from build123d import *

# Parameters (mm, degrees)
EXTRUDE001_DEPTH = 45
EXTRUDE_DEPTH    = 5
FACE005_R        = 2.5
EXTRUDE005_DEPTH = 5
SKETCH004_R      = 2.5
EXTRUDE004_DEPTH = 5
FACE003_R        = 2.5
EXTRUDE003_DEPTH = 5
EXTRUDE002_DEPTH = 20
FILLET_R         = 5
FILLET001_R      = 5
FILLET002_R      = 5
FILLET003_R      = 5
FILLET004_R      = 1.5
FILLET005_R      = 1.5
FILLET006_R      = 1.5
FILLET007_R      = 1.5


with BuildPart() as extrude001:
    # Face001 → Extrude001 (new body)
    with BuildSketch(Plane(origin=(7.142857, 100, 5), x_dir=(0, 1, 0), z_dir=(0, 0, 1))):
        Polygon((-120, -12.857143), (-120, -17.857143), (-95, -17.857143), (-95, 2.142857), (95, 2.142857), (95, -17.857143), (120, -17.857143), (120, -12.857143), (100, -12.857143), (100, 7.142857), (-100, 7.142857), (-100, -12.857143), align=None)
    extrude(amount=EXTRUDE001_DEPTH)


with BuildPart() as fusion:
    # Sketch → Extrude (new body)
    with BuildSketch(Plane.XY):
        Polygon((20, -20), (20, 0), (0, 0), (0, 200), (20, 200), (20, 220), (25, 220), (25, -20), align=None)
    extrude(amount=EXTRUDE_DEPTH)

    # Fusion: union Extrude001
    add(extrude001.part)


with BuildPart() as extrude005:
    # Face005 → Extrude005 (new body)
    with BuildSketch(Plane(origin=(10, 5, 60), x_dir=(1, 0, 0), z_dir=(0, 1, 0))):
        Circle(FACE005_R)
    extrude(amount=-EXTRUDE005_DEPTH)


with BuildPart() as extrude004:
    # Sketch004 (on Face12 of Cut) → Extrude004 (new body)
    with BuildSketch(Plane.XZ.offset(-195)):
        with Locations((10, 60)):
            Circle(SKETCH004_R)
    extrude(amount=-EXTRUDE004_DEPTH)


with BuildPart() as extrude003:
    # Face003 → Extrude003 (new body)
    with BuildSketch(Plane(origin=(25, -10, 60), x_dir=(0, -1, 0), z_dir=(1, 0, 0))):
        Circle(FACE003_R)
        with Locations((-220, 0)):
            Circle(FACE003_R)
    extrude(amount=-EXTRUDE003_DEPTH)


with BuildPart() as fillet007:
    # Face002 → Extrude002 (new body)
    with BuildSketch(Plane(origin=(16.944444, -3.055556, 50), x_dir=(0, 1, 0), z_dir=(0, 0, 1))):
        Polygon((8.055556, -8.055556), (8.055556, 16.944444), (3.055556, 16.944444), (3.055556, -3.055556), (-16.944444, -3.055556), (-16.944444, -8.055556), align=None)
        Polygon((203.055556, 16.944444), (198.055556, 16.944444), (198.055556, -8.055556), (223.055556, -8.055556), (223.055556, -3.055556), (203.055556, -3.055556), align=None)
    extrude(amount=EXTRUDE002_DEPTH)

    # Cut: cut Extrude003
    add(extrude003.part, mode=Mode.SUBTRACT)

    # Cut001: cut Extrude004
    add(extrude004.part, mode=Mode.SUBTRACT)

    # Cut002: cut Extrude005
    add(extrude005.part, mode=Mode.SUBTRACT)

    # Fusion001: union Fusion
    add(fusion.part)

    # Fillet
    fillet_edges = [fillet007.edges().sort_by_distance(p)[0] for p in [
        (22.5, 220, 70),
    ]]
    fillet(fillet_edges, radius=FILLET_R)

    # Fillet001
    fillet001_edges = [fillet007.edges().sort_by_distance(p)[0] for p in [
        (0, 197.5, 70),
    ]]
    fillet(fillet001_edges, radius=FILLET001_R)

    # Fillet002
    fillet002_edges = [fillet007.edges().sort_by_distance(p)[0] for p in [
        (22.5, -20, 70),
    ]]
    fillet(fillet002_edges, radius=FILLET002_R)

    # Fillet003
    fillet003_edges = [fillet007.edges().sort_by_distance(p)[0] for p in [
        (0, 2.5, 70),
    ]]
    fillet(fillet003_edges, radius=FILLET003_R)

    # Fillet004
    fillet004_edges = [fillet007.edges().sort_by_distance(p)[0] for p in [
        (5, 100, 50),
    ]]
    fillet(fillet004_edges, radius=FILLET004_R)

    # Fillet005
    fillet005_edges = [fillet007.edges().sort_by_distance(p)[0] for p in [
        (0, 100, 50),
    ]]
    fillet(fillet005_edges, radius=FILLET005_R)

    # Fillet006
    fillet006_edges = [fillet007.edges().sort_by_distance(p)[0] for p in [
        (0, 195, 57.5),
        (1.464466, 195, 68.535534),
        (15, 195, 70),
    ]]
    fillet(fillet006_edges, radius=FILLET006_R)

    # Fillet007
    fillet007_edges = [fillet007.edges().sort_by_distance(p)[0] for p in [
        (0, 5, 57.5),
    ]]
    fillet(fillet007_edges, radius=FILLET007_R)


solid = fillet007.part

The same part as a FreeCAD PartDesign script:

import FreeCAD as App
import Part
import Sketcher
from FreeCAD import Vector


def edges_at(feature, points):
    """Names of the edges that pass closest to the given points."""
    edges = feature.Shape.Edges
    near = lambda p: min(range(len(edges)), key=lambda i: edges[i].distToShape(Part.Vertex(*p))[0])
    return sorted({f"Edge{near(p) + 1}" for p in points})

doc = App.newDocument("Part")
params = doc.addObject("Spreadsheet::Sheet", "Params")
for row, (alias, value) in enumerate([
    ("sketch1_width", "5 mm"),
    ("sketch1_width2", "20 mm"),
    ("sketch1_height", "25 mm"),
    ("sketch1_height2", "190 mm"),
    ("pad1_length", "45 mm"),
    ("sketch2_width", "5 mm"),
    ("sketch2_width2", "20 mm"),
    ("sketch2_height", "240 mm"),
    ("pad2_length", "5 mm"),
    ("sketch3_diameter", "5 mm"),
    ("pad3_length", "5 mm"),
    ("sketch4_diameter", "5 mm"),
    ("pad4_length", "5 mm"),
    ("sketch5_diameter", "5 mm"),
    ("pad5_length", "5 mm"),
    ("sketch6_width", "25 mm"),
    ("sketch6_width2", "20 mm"),
    ("pad6_length", "20 mm"),
    ("fillet_radius", "5 mm"),
    ("fillet2_radius", "5 mm"),
    ("fillet3_radius", "5 mm"),
    ("fillet4_radius", "5 mm"),
    ("fillet5_radius", "1.5 mm"),
    ("fillet6_radius", "1.5 mm"),
    ("fillet7_radius", "1.5 mm"),
    ("fillet8_radius", "1.5 mm"),
], start=1):
    params.set(f"A{row}", alias)
    params.set(f"B{row}", "=" + value)
    params.setAlias(f"B{row}", alias)

body = doc.addObject("PartDesign::Body", "Body")

sketch1 = body.newObject("Sketcher::SketchObject", "Sketch")
sketch1.AttachmentSupport = (doc.getObject("XY_Plane"), [""])
sketch1.MapMode = "FlatFace"
sketch1.AttachmentOffset = App.Placement(Vector(0, 0, 5), App.Rotation())
sketch1.addGeometry([
    Part.LineSegment(Vector(20, -20, 0), Vector(25, -20, 0)),
    Part.LineSegment(Vector(25, -20, 0), Vector(25, 5, 0)),
    Part.LineSegment(Vector(25, 5, 0), Vector(5, 5, 0)),
    Part.LineSegment(Vector(5, 5, 0), Vector(5, 195, 0)),
    Part.LineSegment(Vector(5, 195, 0), Vector(25, 195, 0)),
    Part.LineSegment(Vector(25, 195, 0), Vector(25, 220, 0)),
    Part.LineSegment(Vector(25, 220, 0), Vector(20, 220, 0)),
    Part.LineSegment(Vector(20, 220, 0), Vector(20, 200, 0)),
    Part.LineSegment(Vector(20, 200, 0), Vector(0, 200, 0)),
    Part.LineSegment(Vector(0, 200, 0), Vector(0, 0, 0)),
    Part.LineSegment(Vector(0, 0, 0), Vector(20, 0, 0)),
    Part.LineSegment(Vector(20, 0, 0), Vector(20, -20, 0)),
], False)
sketch1.addConstraint([
    Sketcher.Constraint("Coincident", 0, 2, 1, 1),
    Sketcher.Constraint("Coincident", 1, 2, 2, 1),
    Sketcher.Constraint("Coincident", 2, 2, 3, 1),
    Sketcher.Constraint("Coincident", 3, 2, 4, 1),
    Sketcher.Constraint("Coincident", 4, 2, 5, 1),
    Sketcher.Constraint("Coincident", 5, 2, 6, 1),
    Sketcher.Constraint("Coincident", 6, 2, 7, 1),
    Sketcher.Constraint("Coincident", 7, 2, 8, 1),
    Sketcher.Constraint("Coincident", 8, 2, 9, 1),
    Sketcher.Constraint("Coincident", 9, 2, 10, 1),
    Sketcher.Constraint("Coincident", 10, 2, 11, 1),
    Sketcher.Constraint("Coincident", 11, 2, 0, 1),
    Sketcher.Constraint("Horizontal", 0),
    Sketcher.Constraint("Vertical", 1),
    Sketcher.Constraint("Horizontal", 2),
    Sketcher.Constraint("Vertical", 3),
    Sketcher.Constraint("Horizontal", 4),
    Sketcher.Constraint("Vertical", 5),
    Sketcher.Constraint("Horizontal", 6),
    Sketcher.Constraint("Vertical", 7),
    Sketcher.Constraint("Horizontal", 8),
    Sketcher.Constraint("Vertical", 9),
    Sketcher.Constraint("Horizontal", 10),
    Sketcher.Constraint("Vertical", 11),
    Sketcher.Constraint("Coincident", 9, 2, -1, 1),
    Sketcher.Constraint("Vertical", 1, 2, 4, 2),
    Sketcher.Constraint("Vertical", 7, 2, 10, 2),
    Sketcher.Constraint("Equal", 4, 8),
    Sketcher.Constraint("Equal", 1, 5),
    Sketcher.Constraint("Equal", 10, 7),
    Sketcher.Constraint("Equal", 7, 11),
    Sketcher.Constraint("DistanceX", 0, 1, 0, 2, 5.0),
    Sketcher.Constraint("DistanceX", 2, 2, 2, 1, 20.0),
    Sketcher.Constraint("DistanceY", 1, 1, 1, 2, 25.0),
    Sketcher.Constraint("DistanceY", 3, 1, 3, 2, 190.0),
])
sketch1.setExpression("Constraints[31]", "Params.sketch1_width")
sketch1.setExpression("Constraints[32]", "Params.sketch1_width2")
sketch1.setExpression("Constraints[33]", "Params.sketch1_height")
sketch1.setExpression("Constraints[34]", "Params.sketch1_height2")
pad1 = body.newObject("PartDesign::Pad", "Pad")
pad1.Profile = sketch1
pad1.setExpression("Length", "Params.pad1_length")
body2 = doc.addObject("PartDesign::Body", "Body001")

sketch2 = body2.newObject("Sketcher::SketchObject", "Sketch001")
sketch2.AttachmentSupport = (doc.getObject("XY_Plane001"), [""])
sketch2.MapMode = "FlatFace"
sketch2.addGeometry([
    Part.LineSegment(Vector(20, 0, 0), Vector(20, -20, 0)),
    Part.LineSegment(Vector(20, -20, 0), Vector(25, -20, 0)),
    Part.LineSegment(Vector(25, -20, 0), Vector(25, 220, 0)),
    Part.LineSegment(Vector(25, 220, 0), Vector(20, 220, 0)),
    Part.LineSegment(Vector(20, 220, 0), Vector(20, 200, 0)),
    Part.LineSegment(Vector(20, 200, 0), Vector(0, 200, 0)),
    Part.LineSegment(Vector(0, 200, 0), Vector(0, 0, 0)),
    Part.LineSegment(Vector(0, 0, 0), Vector(20, 0, 0)),
], False)
sketch2.addConstraint([
    Sketcher.Constraint("Coincident", 0, 2, 1, 1),
    Sketcher.Constraint("Coincident", 1, 2, 2, 1),
    Sketcher.Constraint("Coincident", 2, 2, 3, 1),
    Sketcher.Constraint("Coincident", 3, 2, 4, 1),
    Sketcher.Constraint("Coincident", 4, 2, 5, 1),
    Sketcher.Constraint("Coincident", 5, 2, 6, 1),
    Sketcher.Constraint("Coincident", 6, 2, 7, 1),
    Sketcher.Constraint("Coincident", 7, 2, 0, 1),
    Sketcher.Constraint("Vertical", 0),
    Sketcher.Constraint("Horizontal", 1),
    Sketcher.Constraint("Vertical", 2),
    Sketcher.Constraint("Horizontal", 3),
    Sketcher.Constraint("Vertical", 4),
    Sketcher.Constraint("Horizontal", 5),
    Sketcher.Constraint("Vertical", 6),
    Sketcher.Constraint("Horizontal", 7),
    Sketcher.Constraint("Coincident", 6, 2, -1, 1),
    Sketcher.Constraint("Vertical", 0, 2, 3, 2),
    Sketcher.Constraint("Equal", 7, 0),
    Sketcher.Constraint("Equal", 0, 4),
    Sketcher.Constraint("DistanceX", 1, 1, 1, 2, 5.0),
    Sketcher.Constraint("DistanceX", 5, 2, 5, 1, 20.0),
    Sketcher.Constraint("DistanceY", 2, 1, 2, 2, 240.0),
])
sketch2.setExpression("Constraints[20]", "Params.sketch2_width")
sketch2.setExpression("Constraints[21]", "Params.sketch2_width2")
sketch2.setExpression("Constraints[22]", "Params.sketch2_height")
pad2 = body2.newObject("PartDesign::Pad", "Pad001")
pad2.Profile = sketch2
pad2.setExpression("Length", "Params.pad2_length")
doc.recompute()

boolean = body2.newObject("PartDesign::Boolean", "Boolean")
boolean.Type = "Fuse"
boolean.addObjects([body])
body3 = doc.addObject("PartDesign::Body", "Body002")

sketch3 = body3.newObject("Sketcher::SketchObject", "Sketch002")
sketch3.AttachmentSupport = (doc.getObject("XZ_Plane002"), [""])
sketch3.MapMode = "FlatFace"
sketch3.AttachmentOffset = App.Placement(Vector(0, 0, -5), App.Rotation())
sketch3.addGeometry(Part.Circle(Vector(10, 60, 0), Vector(0, 0, 1), 2.5), False)
sketch3.addConstraint([
    Sketcher.Constraint("Diameter", 0, 5.0),
    Sketcher.Constraint("DistanceX", -1, 1, 0, 3, 10.0),
    Sketcher.Constraint("DistanceY", -1, 1, 0, 3, 60.0),
])
sketch3.setExpression("Constraints[0]", "Params.sketch3_diameter")
pad3 = body3.newObject("PartDesign::Pad", "Pad002")
pad3.Profile = sketch3
pad3.setExpression("Length", "Params.pad3_length")
body4 = doc.addObject("PartDesign::Body", "Body003")

sketch4 = body4.newObject("Sketcher::SketchObject", "Sketch003")
sketch4.AttachmentSupport = (doc.getObject("XZ_Plane003"), [""])
sketch4.MapMode = "FlatFace"
sketch4.AttachmentOffset = App.Placement(Vector(0, 0, -195), App.Rotation())
sketch4.addGeometry(Part.Circle(Vector(10, 60, 0), Vector(0, 0, 1), 2.5), False)
sketch4.addConstraint([
    Sketcher.Constraint("Diameter", 0, 5.0),
    Sketcher.Constraint("DistanceX", -1, 1, 0, 3, 10.0),
    Sketcher.Constraint("DistanceY", -1, 1, 0, 3, 60.0),
])
sketch4.setExpression("Constraints[0]", "Params.sketch4_diameter")
pad4 = body4.newObject("PartDesign::Pad", "Pad003")
pad4.Profile = sketch4
pad4.setExpression("Length", "Params.pad4_length")
pad4.Reversed = True
body5 = doc.addObject("PartDesign::Body", "Body004")
body5.AllowCompound = True

sketch5 = body5.newObject("Sketcher::SketchObject", "Sketch004")
sketch5.AttachmentSupport = (doc.getObject("YZ_Plane004"), [""])
sketch5.MapMode = "FlatFace"
sketch5.AttachmentOffset = App.Placement(Vector(0, 0, 25), App.Rotation())
sketch5.addGeometry([
    Part.Circle(Vector(-10, 60, 0), Vector(0, 0, 1), 2.5),
    Part.Circle(Vector(210, 60, 0), Vector(0, 0, 1), 2.5),
], False)
sketch5.addConstraint([
    Sketcher.Constraint("Equal", 0, 1),
    Sketcher.Constraint("Horizontal", 0, 3, 1, 3),
    Sketcher.Constraint("Diameter", 0, 5.0),
    Sketcher.Constraint("DistanceX", 0, 3, -1, 1, 10.0),
    Sketcher.Constraint("DistanceY", -1, 1, 0, 3, 60.0),
    Sketcher.Constraint("DistanceX", -1, 1, 1, 3, 210.0),
])
sketch5.setExpression("Constraints[2]", "Params.sketch5_diameter")
pad5 = body5.newObject("PartDesign::Pad", "Pad004")
pad5.Profile = sketch5
pad5.setExpression("Length", "Params.pad5_length")
pad5.Reversed = True
body6 = doc.addObject("PartDesign::Body", "Body005")
body6.AllowCompound = True

sketch6 = body6.newObject("Sketcher::SketchObject", "Sketch005")
sketch6.AttachmentSupport = (doc.getObject("XY_Plane005"), [""])
sketch6.MapMode = "FlatFace"
sketch6.AttachmentOffset = App.Placement(Vector(0, 0, 50), App.Rotation())
sketch6.addGeometry([
    Part.LineSegment(Vector(25, 5, 0), Vector(0, 5, 0)),
    Part.LineSegment(Vector(0, 5, 0), Vector(0, 0, 0)),
    Part.LineSegment(Vector(0, 0, 0), Vector(20, 0, 0)),
    Part.LineSegment(Vector(20, 0, 0), Vector(20, -20, 0)),
    Part.LineSegment(Vector(20, -20, 0), Vector(25, -20, 0)),
    Part.LineSegment(Vector(25, -20, 0), Vector(25, 5, 0)),
    Part.LineSegment(Vector(0, 200, 0), Vector(0, 195, 0)),
    Part.LineSegment(Vector(0, 195, 0), Vector(25, 195, 0)),
    Part.LineSegment(Vector(25, 195, 0), Vector(25, 220, 0)),
    Part.LineSegment(Vector(25, 220, 0), Vector(20, 220, 0)),
    Part.LineSegment(Vector(20, 220, 0), Vector(20, 200, 0)),
    Part.LineSegment(Vector(20, 200, 0), Vector(0, 200, 0)),
], False)
sketch6.addConstraint([
    Sketcher.Constraint("Coincident", 0, 2, 1, 1),
    Sketcher.Constraint("Coincident", 1, 2, 2, 1),
    Sketcher.Constraint("Coincident", 2, 2, 3, 1),
    Sketcher.Constraint("Coincident", 3, 2, 4, 1),
    Sketcher.Constraint("Coincident", 4, 2, 5, 1),
    Sketcher.Constraint("Coincident", 5, 2, 0, 1),
    Sketcher.Constraint("Coincident", 6, 2, 7, 1),
    Sketcher.Constraint("Coincident", 7, 2, 8, 1),
    Sketcher.Constraint("Coincident", 8, 2, 9, 1),
    Sketcher.Constraint("Coincident", 9, 2, 10, 1),
    Sketcher.Constraint("Coincident", 10, 2, 11, 1),
    Sketcher.Constraint("Coincident", 11, 2, 6, 1),
    Sketcher.Constraint("Horizontal", 0),
    Sketcher.Constraint("Vertical", 1),
    Sketcher.Constraint("Horizontal", 2),
    Sketcher.Constraint("Vertical", 3),
    Sketcher.Constraint("Horizontal", 4),
    Sketcher.Constraint("Vertical", 5),
    Sketcher.Constraint("Vertical", 6),
    Sketcher.Constraint("Horizontal", 7),
    Sketcher.Constraint("Vertical", 8),
    Sketcher.Constraint("Horizontal", 9),
    Sketcher.Constraint("Vertical", 10),
    Sketcher.Constraint("Horizontal", 11),
    Sketcher.Constraint("Coincident", 1, 2, -1, 1),
    Sketcher.Constraint("PointOnObject", 6, 2, -2),
    Sketcher.Constraint("Vertical", 5, 2, 7, 2),
    Sketcher.Constraint("Vertical", 3, 2, 9, 2),
    Sketcher.Constraint("Equal", 9, 1),
    Sketcher.Constraint("Equal", 11, 3),
    Sketcher.Constraint("Equal", 1, 6),
    Sketcher.Constraint("Equal", 5, 8),
    Sketcher.Constraint("DistanceX", 0, 2, 0, 1, 25.0),
    Sketcher.Constraint("DistanceX", 2, 1, 2, 2, 20.0),
    Sketcher.Constraint("DistanceY", -1, 1, 6, 2, 195.0),
])
sketch6.setExpression("Constraints[32]", "Params.sketch6_width")
sketch6.setExpression("Constraints[33]", "Params.sketch6_width2")
pad6 = body6.newObject("PartDesign::Pad", "Pad005")
pad6.Profile = sketch6
pad6.setExpression("Length", "Params.pad6_length")
doc.recompute()

boolean2 = body6.newObject("PartDesign::Boolean", "Boolean001")
boolean2.Type = "Cut"
boolean2.addObjects([body5])
doc.recompute()

boolean3 = body6.newObject("PartDesign::Boolean", "Boolean002")
boolean3.Type = "Cut"
boolean3.addObjects([body4])
doc.recompute()

boolean4 = body6.newObject("PartDesign::Boolean", "Boolean003")
boolean4.Type = "Cut"
boolean4.addObjects([body3])
doc.recompute()

boolean5 = body6.newObject("PartDesign::Boolean", "Boolean004")
boolean5.Type = "Fuse"
boolean5.addObjects([body2])
doc.recompute()

fillet = body6.newObject("PartDesign::Fillet", "Fillet")
fillet.Base = (boolean5, edges_at(boolean5, [(22.5, 220, 70)]))
fillet.setExpression("Radius", "Params.fillet_radius")
doc.recompute()

fillet2 = body6.newObject("PartDesign::Fillet", "Fillet001")
fillet2.Base = (fillet, edges_at(fillet, [(0, 197.5, 70)]))
fillet2.setExpression("Radius", "Params.fillet2_radius")
doc.recompute()

fillet3 = body6.newObject("PartDesign::Fillet", "Fillet002")
fillet3.Base = (fillet2, edges_at(fillet2, [(22.5, -20, 70)]))
fillet3.setExpression("Radius", "Params.fillet3_radius")
doc.recompute()

fillet4 = body6.newObject("PartDesign::Fillet", "Fillet003")
fillet4.Base = (fillet3, edges_at(fillet3, [(0, 2.5, 70)]))
fillet4.setExpression("Radius", "Params.fillet4_radius")
doc.recompute()

fillet5 = body6.newObject("PartDesign::Fillet", "Fillet004")
fillet5.Base = (fillet4, edges_at(fillet4, [(5, 100, 50)]))
fillet5.setExpression("Radius", "Params.fillet5_radius")
doc.recompute()

fillet6 = body6.newObject("PartDesign::Fillet", "Fillet005")
fillet6.Base = (fillet5, edges_at(fillet5, [(0, 100, 50)]))
fillet6.setExpression("Radius", "Params.fillet6_radius")
doc.recompute()

fillet7 = body6.newObject("PartDesign::Fillet", "Fillet006")
fillet7.Base = (fillet6, edges_at(fillet6, [(0, 195, 56.75), (1.464, 195, 68.536), (15, 195, 70)]))
fillet7.setExpression("Radius", "Params.fillet7_radius")
doc.recompute()

fillet8 = body6.newObject("PartDesign::Fillet", "Fillet007")
fillet8.Base = (fillet7, edges_at(fillet7, [(0, 5, 56.75)]))
fillet8.setExpression("Radius", "Params.fillet8_radius")

doc.recompute()
